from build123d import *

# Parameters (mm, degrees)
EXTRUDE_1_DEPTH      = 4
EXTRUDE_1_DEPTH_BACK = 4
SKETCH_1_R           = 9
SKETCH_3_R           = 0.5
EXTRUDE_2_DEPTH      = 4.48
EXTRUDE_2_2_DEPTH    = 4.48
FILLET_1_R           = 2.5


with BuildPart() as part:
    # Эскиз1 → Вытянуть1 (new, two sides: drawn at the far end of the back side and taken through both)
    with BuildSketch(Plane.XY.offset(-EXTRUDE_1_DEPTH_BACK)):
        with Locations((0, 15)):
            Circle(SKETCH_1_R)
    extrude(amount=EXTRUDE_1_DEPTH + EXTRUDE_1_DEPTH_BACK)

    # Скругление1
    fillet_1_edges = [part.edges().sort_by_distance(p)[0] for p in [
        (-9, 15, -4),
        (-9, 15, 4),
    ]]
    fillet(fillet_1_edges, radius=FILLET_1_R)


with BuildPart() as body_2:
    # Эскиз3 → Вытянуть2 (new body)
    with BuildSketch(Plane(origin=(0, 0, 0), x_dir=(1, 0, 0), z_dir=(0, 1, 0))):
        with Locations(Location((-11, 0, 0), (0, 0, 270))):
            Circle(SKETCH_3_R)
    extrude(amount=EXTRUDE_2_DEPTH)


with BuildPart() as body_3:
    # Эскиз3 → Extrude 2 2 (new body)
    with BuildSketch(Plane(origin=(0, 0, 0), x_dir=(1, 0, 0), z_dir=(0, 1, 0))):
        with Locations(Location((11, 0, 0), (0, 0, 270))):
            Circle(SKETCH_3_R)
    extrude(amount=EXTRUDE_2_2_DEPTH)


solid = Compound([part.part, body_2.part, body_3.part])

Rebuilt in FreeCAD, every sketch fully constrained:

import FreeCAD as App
import Part
import Sketcher
Q = App.Units.Quantity


def edges_at(feature, points):
    """Names of the edges that pass closest to the given points."""
    edges = feature.Shape.Edges
    near = lambda p: min(range(len(edges)), key=lambda i: edges[i].distToShape(Part.Vertex(*p))[0])
    return sorted({f"Edge{near(p) + 1}" for p in points})

doc = App.newDocument("Part")
body = doc.addObject("PartDesign::Body", "Body")

# Sketch on XY plane
sketch1 = body.newObject("Sketcher::SketchObject", "Sketch")
sketch1.AttachmentSupport = (doc.getObject("XY_Plane"), [""])
sketch1.MapMode = "FlatFace"
sketch1.addGeometry(Part.Circle(App.Vector(0, 15, 0), App.Vector(0, 0, 1), 9), False)
sketch1.addConstraint([
    Sketcher.Constraint("PointOnObject", 0, 3, -2),
    Sketcher.Constraint("Diameter", 0, Q("18 mm")),
    Sketcher.Constraint("DistanceY", -1, 1, 0, 3, Q("15 mm")),
])
pad1 = body.newObject("PartDesign::Pad", "Pad")
pad1.Profile = sketch1
pad1.Type = "TwoLengths"
pad1.Length = 4
pad1.Length2 = 4
doc.recompute()

fillet = body.newObject("PartDesign::Fillet", "Fillet")
fillet.Base = (pad1, edges_at(pad1, [(-9, 15, -4), (-9, 15, 4)]))
fillet.Radius = 2.5
body2 = doc.addObject("PartDesign::Body", "Body001")

# Sketch on XZ plane
sketch2 = body2.newObject("Sketcher::SketchObject", "Sketch001")
sketch2.AttachmentSupport = (doc.getObject("XZ_Plane001"), [""])
sketch2.MapMode = "FlatFace"
sketch2.addGeometry(Part.Circle(App.Vector(-11, 0, 0), App.Vector(0, 0, 1), 0.5), False)
sketch2.addConstraint([
    Sketcher.Constraint("PointOnObject", 0, 3, -1),
    Sketcher.Constraint("Diameter", 0, Q("1 mm")),
    Sketcher.Constraint("DistanceX", 0, 3, -1, 1, Q("11 mm")),
])
pad2 = body2.newObject("PartDesign::Pad", "Pad001")
pad2.Profile = sketch2
pad2.Length = 4.48
pad2.Reversed = True
body3 = doc.addObject("PartDesign::Body", "Body002")

# Sketch on XZ plane
sketch3 = body3.newObject("Sketcher::SketchObject", "Sketch002")
sketch3.AttachmentSupport = (doc.getObject("XZ_Plane002"), [""])
sketch3.MapMode = "FlatFace"
sketch3.addGeometry(Part.Circle(App.Vector(11, 0, 0), App.Vector(0, 0, 1), 0.5), False)
sketch3.addConstraint([
    Sketcher.Constraint("PointOnObject", 0, 3, -1),
    Sketcher.Constraint("Diameter", 0, Q("1 mm")),
    Sketcher.Constraint("DistanceX", -1, 1, 0, 3, Q("11 mm")),
])
pad3 = body3.newObject("PartDesign::Pad", "Pad002")
pad3.Profile = sketch3
pad3.Length = 4.48
pad3.Reversed = True

doc.recompute()
